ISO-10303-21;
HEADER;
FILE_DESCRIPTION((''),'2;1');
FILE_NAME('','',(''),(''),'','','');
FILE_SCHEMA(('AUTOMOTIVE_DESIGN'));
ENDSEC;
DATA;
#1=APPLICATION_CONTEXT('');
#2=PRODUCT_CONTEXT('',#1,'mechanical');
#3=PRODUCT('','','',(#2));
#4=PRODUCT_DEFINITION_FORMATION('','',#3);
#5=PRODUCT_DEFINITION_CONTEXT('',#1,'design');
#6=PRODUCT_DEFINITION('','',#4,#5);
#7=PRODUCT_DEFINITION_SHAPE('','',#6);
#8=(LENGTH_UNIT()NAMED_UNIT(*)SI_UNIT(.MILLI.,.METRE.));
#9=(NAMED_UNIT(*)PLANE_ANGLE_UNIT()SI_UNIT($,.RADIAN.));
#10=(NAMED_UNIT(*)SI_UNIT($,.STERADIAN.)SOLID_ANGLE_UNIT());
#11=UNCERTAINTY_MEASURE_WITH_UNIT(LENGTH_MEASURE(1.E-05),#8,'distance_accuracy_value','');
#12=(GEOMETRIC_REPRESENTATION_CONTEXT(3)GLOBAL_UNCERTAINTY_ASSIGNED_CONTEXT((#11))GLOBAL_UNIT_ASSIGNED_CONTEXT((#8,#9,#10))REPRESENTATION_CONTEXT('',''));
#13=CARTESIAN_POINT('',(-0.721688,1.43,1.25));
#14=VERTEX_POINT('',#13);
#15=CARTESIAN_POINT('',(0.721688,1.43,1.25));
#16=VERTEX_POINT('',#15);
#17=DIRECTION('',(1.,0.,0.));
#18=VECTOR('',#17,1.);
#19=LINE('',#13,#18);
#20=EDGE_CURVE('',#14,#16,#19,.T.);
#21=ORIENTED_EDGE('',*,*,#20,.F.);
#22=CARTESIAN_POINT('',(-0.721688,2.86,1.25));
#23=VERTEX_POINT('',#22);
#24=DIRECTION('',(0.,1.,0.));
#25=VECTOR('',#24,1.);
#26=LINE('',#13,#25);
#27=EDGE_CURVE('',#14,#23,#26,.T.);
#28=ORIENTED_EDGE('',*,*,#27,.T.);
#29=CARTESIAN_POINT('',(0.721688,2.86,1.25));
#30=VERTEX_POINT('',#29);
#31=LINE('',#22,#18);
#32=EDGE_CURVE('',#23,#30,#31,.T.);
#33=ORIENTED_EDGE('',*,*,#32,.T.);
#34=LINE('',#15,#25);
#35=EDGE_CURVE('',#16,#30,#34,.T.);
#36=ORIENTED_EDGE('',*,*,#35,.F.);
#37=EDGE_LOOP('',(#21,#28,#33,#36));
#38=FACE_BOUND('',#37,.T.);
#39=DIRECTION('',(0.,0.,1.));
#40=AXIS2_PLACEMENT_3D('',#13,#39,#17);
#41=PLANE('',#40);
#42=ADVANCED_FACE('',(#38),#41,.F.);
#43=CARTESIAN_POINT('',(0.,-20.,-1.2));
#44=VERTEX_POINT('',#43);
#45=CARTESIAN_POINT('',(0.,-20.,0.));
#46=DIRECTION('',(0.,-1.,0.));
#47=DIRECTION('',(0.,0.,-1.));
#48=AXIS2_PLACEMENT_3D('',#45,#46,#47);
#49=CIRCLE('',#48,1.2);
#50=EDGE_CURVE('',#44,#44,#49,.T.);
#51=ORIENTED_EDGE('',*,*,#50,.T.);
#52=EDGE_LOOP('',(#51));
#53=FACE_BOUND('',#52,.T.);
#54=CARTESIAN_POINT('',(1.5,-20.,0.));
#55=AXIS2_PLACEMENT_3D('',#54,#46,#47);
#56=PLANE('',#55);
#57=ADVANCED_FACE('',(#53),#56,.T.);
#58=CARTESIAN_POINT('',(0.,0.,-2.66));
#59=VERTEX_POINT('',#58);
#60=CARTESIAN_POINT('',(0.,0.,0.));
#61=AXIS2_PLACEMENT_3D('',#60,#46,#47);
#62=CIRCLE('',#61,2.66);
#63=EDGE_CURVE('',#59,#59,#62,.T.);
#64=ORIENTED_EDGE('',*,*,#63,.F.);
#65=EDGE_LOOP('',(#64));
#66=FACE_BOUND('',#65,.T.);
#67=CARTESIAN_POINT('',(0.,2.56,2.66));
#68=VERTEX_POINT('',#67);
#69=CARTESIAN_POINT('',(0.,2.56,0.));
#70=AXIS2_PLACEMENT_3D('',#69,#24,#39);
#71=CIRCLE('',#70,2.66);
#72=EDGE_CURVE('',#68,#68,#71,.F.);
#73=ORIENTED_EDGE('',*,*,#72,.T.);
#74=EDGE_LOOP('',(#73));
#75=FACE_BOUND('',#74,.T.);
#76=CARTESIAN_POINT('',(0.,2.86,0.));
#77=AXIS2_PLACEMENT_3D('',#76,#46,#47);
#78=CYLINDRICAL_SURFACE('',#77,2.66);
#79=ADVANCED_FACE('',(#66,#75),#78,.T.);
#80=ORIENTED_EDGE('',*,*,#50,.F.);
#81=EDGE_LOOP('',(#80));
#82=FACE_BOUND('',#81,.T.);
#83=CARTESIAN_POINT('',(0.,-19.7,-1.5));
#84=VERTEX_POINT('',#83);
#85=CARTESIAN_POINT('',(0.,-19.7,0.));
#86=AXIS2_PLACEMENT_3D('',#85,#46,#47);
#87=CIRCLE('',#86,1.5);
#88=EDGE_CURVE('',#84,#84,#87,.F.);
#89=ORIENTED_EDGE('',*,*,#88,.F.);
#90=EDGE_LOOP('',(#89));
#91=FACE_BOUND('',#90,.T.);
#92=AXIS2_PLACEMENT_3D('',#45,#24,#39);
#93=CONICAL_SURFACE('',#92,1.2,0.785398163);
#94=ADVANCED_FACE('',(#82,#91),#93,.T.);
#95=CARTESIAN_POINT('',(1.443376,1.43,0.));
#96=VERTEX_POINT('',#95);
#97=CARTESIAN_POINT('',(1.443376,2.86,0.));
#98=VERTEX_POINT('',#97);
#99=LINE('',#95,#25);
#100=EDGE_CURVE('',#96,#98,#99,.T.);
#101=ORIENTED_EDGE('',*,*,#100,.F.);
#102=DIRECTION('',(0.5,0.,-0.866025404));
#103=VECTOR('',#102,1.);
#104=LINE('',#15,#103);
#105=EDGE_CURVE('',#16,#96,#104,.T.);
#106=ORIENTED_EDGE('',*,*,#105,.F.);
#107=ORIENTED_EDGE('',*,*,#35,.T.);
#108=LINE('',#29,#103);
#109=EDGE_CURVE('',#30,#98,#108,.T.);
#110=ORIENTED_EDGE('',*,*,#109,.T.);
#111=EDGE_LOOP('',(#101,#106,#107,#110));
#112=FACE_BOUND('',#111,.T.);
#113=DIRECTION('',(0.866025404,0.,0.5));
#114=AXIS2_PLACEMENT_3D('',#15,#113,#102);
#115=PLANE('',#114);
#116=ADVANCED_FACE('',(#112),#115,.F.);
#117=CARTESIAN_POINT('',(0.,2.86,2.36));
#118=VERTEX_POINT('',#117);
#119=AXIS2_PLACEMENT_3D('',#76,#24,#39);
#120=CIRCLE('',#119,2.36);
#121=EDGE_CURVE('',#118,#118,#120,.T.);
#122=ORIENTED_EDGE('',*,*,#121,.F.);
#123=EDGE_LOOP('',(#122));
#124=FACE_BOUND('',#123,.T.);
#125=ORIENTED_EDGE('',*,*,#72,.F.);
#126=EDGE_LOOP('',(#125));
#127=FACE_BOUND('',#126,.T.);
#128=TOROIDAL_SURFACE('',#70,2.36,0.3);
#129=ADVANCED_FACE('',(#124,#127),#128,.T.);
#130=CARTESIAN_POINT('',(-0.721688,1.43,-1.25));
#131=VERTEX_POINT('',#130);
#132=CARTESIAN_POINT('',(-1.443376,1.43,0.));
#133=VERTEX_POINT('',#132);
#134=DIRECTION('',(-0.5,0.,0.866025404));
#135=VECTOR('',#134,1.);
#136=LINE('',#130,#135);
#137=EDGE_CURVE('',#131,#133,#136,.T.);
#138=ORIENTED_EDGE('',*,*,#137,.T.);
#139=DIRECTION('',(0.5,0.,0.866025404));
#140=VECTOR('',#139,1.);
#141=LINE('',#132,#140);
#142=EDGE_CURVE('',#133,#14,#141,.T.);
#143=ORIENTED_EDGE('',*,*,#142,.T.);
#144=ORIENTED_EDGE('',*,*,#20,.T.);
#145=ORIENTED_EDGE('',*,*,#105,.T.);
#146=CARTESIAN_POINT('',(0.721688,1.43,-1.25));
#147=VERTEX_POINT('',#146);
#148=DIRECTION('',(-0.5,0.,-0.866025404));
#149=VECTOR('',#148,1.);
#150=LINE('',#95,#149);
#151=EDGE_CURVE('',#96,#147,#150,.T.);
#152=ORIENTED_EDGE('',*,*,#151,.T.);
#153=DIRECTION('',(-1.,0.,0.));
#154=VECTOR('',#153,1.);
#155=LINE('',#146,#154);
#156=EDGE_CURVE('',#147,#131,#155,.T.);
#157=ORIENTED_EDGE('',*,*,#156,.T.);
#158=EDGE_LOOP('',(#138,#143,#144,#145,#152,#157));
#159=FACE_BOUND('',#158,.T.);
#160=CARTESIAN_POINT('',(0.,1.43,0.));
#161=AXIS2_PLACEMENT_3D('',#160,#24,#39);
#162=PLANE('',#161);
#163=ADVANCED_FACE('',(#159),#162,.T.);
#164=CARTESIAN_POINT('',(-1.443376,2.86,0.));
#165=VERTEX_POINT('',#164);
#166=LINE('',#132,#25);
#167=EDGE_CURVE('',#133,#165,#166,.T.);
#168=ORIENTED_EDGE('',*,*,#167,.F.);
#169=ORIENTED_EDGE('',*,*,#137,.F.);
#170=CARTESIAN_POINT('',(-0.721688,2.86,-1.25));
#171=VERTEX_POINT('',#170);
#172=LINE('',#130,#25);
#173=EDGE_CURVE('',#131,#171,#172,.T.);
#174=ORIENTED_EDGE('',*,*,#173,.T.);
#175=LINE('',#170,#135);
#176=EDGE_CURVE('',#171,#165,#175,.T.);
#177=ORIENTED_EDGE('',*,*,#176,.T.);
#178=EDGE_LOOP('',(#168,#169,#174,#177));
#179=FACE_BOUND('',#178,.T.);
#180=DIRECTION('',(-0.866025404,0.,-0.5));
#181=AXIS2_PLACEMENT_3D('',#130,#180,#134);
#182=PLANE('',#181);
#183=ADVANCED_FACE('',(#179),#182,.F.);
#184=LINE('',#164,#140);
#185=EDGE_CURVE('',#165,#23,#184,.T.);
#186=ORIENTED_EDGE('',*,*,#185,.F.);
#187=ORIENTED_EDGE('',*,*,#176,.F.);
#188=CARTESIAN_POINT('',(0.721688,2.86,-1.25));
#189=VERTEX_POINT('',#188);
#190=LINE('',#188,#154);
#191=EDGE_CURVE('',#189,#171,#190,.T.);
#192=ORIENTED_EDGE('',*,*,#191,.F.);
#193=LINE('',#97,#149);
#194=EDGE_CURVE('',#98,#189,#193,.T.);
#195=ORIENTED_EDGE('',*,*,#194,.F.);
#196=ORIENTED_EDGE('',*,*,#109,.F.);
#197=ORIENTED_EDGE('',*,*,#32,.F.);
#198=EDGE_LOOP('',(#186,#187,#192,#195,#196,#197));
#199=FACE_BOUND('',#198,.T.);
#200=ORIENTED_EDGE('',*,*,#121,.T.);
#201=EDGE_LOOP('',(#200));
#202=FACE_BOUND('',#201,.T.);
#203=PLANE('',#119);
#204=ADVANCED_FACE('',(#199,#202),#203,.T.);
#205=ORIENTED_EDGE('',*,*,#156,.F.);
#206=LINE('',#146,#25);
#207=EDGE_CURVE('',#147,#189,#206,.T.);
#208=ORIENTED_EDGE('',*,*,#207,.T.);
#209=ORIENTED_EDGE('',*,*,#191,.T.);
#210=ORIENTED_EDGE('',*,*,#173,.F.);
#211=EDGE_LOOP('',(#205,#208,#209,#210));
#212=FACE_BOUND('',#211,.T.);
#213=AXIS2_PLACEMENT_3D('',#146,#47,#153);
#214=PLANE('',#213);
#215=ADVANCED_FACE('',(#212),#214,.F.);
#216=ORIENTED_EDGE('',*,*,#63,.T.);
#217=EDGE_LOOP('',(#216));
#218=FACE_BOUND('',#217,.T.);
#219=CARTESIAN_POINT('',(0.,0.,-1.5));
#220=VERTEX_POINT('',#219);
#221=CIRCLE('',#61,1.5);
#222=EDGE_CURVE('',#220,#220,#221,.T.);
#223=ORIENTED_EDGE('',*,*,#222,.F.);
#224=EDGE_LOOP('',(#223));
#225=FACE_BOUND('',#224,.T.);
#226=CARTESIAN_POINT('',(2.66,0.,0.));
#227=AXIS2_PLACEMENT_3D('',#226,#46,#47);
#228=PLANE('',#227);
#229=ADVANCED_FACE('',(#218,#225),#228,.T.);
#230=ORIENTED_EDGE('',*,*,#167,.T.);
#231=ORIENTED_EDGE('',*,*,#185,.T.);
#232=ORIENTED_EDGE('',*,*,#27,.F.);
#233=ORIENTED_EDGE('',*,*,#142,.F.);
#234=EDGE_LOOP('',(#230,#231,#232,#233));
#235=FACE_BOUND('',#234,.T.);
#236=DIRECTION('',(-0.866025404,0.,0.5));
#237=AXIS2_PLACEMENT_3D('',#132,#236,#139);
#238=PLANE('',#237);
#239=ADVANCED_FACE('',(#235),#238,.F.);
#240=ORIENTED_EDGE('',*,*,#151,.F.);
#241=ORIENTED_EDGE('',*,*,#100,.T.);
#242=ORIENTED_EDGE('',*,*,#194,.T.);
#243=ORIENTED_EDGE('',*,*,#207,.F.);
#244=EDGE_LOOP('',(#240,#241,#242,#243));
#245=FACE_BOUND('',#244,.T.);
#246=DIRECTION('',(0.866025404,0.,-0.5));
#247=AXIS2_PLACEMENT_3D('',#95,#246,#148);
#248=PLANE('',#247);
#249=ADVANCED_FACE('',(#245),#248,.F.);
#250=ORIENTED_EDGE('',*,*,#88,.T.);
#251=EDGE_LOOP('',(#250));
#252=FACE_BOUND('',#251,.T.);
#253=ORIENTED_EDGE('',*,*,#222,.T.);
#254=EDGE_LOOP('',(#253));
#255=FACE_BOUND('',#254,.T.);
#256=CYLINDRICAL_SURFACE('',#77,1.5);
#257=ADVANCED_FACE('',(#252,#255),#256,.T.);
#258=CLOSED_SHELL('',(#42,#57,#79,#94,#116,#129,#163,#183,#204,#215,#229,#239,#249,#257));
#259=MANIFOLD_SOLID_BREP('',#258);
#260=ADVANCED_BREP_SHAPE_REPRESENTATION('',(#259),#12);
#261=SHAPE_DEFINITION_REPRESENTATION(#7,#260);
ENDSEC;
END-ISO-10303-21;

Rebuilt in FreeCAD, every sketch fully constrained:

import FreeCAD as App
import Part
import Sketcher
from FreeCAD import Vector
Q = App.Units.Quantity


def edges_at(feature, points):
    """Names of the edges that pass closest to the given points."""
    edges = feature.Shape.Edges
    near = lambda p: min(range(len(edges)), key=lambda i: edges[i].distToShape(Part.Vertex(*p))[0])
    return sorted({f"Edge{near(p) + 1}" for p in points})


def add_polygon(sketch, points):
    """Adds a closed chain of lines whose ends are joined by coincident constraints."""
    first, n = sketch.GeometryCount, len(points)
    for a, b in zip(points, points[1:] + points[:1]):
        sketch.addGeometry(Part.LineSegment(App.Vector(*a, 0), App.Vector(*b, 0)), False)
    for i in range(n):
        sketch.addConstraint(Sketcher.Constraint("Coincident", first + i, 2, first + (i + 1) % n, 1))

doc = App.newDocument("Part")
body = doc.addObject("PartDesign::Body", "Body")

sketch1 = body.newObject("Sketcher::SketchObject", "Sketch")
sketch1.AttachmentSupport = (doc.getObject("XY_Plane"), [""])
sketch1.MapMode = "FlatFace"
add_polygon(sketch1, [(0, 2.9), (0, -20), (1.5, -20), (1.5, 0), (2.7, 0), (2.7, 2.9)])
sketch1.addConstraint([
    Sketcher.Constraint("Vertical", 0),
    Sketcher.Constraint("Horizontal", 1),
    Sketcher.Constraint("Vertical", 2),
    Sketcher.Constraint("Horizontal", 3),
    Sketcher.Constraint("Vertical", 4),
    Sketcher.Constraint("Horizontal", 5),
    Sketcher.Constraint("PointOnObject", 0, 2, -2),
    Sketcher.Constraint("PointOnObject", 2, 2, -1),
    Sketcher.Constraint("DistanceY", 2, 1, 2, 2, Q("20 mm")),
    Sketcher.Constraint("DistanceX", 1, 1, 1, 2, Q("1.5 mm")),
    Sketcher.Constraint("DistanceX", 3, 1, 3, 2, Q("1.16 mm")),
    Sketcher.Constraint("DistanceY", 0, 2, 0, 1, Q("22.86 mm")),
])
revolution = body.newObject("PartDesign::Revolution", "Revolution")
revolution.Profile = sketch1
revolution.ReferenceAxis = (sketch1, ["V_Axis"])
revolution.Angle = 360
doc.recompute()

chamfer = body.newObject("PartDesign::Chamfer", "Chamfer")
chamfer.Base = (revolution, edges_at(revolution, [(0, -20, 1.5)]))
chamfer.Size = 0.3
doc.recompute()

fillet = body.newObject("PartDesign::Fillet", "Fillet")
fillet.Base = (chamfer, edges_at(chamfer, [(0, 2.86, 2.66)]))
fillet.Radius = 0.3

sketch2 = body.newObject("Sketcher::SketchObject", "Sketch001")
sketch2.AttachmentSupport = (doc.getObject("XZ_Plane"), [""])
sketch2.MapMode = "FlatFace"
sketch2.AttachmentOffset = App.Placement(Vector(0, 0, -2.86), App.Rotation())
add_polygon(sketch2, [(0.7, 1.2), (1.4, 0), (0.7, -1.2), (-0.7, -1.2), (-1.4, 0), (-0.7, 1.2)])
sketch2.addConstraint([
    Sketcher.Constraint("Horizontal", 2),
    Sketcher.Constraint("Horizontal", 5),
    Sketcher.Constraint("Symmetric", 0, 2, 3, 2, -1, 1),
    Sketcher.Constraint("Symmetric", 1, 2, 4, 2, -1, 1),
    Sketcher.Constraint("PointOnObject", 0, 2, -1),
    Sketcher.Constraint("Parallel", 0, 3),
    Sketcher.Constraint("Vertical", 2, 2, 4, 2),
    Sketcher.Constraint("Angle", 0, Q("-60 deg")),
    Sketcher.Constraint("DistanceY", 2, 2, 4, 2, Q("2.5 mm")),
    Sketcher.Constraint("DistanceX", 2, 2, 2, 1, Q("1.443376 mm")),
])
pocket1 = body.newObject("PartDesign::Pocket", "Pocket")
pocket1.Profile = sketch2
pocket1.Length = 1.43
pocket1.Reversed = True

doc.recompute()
